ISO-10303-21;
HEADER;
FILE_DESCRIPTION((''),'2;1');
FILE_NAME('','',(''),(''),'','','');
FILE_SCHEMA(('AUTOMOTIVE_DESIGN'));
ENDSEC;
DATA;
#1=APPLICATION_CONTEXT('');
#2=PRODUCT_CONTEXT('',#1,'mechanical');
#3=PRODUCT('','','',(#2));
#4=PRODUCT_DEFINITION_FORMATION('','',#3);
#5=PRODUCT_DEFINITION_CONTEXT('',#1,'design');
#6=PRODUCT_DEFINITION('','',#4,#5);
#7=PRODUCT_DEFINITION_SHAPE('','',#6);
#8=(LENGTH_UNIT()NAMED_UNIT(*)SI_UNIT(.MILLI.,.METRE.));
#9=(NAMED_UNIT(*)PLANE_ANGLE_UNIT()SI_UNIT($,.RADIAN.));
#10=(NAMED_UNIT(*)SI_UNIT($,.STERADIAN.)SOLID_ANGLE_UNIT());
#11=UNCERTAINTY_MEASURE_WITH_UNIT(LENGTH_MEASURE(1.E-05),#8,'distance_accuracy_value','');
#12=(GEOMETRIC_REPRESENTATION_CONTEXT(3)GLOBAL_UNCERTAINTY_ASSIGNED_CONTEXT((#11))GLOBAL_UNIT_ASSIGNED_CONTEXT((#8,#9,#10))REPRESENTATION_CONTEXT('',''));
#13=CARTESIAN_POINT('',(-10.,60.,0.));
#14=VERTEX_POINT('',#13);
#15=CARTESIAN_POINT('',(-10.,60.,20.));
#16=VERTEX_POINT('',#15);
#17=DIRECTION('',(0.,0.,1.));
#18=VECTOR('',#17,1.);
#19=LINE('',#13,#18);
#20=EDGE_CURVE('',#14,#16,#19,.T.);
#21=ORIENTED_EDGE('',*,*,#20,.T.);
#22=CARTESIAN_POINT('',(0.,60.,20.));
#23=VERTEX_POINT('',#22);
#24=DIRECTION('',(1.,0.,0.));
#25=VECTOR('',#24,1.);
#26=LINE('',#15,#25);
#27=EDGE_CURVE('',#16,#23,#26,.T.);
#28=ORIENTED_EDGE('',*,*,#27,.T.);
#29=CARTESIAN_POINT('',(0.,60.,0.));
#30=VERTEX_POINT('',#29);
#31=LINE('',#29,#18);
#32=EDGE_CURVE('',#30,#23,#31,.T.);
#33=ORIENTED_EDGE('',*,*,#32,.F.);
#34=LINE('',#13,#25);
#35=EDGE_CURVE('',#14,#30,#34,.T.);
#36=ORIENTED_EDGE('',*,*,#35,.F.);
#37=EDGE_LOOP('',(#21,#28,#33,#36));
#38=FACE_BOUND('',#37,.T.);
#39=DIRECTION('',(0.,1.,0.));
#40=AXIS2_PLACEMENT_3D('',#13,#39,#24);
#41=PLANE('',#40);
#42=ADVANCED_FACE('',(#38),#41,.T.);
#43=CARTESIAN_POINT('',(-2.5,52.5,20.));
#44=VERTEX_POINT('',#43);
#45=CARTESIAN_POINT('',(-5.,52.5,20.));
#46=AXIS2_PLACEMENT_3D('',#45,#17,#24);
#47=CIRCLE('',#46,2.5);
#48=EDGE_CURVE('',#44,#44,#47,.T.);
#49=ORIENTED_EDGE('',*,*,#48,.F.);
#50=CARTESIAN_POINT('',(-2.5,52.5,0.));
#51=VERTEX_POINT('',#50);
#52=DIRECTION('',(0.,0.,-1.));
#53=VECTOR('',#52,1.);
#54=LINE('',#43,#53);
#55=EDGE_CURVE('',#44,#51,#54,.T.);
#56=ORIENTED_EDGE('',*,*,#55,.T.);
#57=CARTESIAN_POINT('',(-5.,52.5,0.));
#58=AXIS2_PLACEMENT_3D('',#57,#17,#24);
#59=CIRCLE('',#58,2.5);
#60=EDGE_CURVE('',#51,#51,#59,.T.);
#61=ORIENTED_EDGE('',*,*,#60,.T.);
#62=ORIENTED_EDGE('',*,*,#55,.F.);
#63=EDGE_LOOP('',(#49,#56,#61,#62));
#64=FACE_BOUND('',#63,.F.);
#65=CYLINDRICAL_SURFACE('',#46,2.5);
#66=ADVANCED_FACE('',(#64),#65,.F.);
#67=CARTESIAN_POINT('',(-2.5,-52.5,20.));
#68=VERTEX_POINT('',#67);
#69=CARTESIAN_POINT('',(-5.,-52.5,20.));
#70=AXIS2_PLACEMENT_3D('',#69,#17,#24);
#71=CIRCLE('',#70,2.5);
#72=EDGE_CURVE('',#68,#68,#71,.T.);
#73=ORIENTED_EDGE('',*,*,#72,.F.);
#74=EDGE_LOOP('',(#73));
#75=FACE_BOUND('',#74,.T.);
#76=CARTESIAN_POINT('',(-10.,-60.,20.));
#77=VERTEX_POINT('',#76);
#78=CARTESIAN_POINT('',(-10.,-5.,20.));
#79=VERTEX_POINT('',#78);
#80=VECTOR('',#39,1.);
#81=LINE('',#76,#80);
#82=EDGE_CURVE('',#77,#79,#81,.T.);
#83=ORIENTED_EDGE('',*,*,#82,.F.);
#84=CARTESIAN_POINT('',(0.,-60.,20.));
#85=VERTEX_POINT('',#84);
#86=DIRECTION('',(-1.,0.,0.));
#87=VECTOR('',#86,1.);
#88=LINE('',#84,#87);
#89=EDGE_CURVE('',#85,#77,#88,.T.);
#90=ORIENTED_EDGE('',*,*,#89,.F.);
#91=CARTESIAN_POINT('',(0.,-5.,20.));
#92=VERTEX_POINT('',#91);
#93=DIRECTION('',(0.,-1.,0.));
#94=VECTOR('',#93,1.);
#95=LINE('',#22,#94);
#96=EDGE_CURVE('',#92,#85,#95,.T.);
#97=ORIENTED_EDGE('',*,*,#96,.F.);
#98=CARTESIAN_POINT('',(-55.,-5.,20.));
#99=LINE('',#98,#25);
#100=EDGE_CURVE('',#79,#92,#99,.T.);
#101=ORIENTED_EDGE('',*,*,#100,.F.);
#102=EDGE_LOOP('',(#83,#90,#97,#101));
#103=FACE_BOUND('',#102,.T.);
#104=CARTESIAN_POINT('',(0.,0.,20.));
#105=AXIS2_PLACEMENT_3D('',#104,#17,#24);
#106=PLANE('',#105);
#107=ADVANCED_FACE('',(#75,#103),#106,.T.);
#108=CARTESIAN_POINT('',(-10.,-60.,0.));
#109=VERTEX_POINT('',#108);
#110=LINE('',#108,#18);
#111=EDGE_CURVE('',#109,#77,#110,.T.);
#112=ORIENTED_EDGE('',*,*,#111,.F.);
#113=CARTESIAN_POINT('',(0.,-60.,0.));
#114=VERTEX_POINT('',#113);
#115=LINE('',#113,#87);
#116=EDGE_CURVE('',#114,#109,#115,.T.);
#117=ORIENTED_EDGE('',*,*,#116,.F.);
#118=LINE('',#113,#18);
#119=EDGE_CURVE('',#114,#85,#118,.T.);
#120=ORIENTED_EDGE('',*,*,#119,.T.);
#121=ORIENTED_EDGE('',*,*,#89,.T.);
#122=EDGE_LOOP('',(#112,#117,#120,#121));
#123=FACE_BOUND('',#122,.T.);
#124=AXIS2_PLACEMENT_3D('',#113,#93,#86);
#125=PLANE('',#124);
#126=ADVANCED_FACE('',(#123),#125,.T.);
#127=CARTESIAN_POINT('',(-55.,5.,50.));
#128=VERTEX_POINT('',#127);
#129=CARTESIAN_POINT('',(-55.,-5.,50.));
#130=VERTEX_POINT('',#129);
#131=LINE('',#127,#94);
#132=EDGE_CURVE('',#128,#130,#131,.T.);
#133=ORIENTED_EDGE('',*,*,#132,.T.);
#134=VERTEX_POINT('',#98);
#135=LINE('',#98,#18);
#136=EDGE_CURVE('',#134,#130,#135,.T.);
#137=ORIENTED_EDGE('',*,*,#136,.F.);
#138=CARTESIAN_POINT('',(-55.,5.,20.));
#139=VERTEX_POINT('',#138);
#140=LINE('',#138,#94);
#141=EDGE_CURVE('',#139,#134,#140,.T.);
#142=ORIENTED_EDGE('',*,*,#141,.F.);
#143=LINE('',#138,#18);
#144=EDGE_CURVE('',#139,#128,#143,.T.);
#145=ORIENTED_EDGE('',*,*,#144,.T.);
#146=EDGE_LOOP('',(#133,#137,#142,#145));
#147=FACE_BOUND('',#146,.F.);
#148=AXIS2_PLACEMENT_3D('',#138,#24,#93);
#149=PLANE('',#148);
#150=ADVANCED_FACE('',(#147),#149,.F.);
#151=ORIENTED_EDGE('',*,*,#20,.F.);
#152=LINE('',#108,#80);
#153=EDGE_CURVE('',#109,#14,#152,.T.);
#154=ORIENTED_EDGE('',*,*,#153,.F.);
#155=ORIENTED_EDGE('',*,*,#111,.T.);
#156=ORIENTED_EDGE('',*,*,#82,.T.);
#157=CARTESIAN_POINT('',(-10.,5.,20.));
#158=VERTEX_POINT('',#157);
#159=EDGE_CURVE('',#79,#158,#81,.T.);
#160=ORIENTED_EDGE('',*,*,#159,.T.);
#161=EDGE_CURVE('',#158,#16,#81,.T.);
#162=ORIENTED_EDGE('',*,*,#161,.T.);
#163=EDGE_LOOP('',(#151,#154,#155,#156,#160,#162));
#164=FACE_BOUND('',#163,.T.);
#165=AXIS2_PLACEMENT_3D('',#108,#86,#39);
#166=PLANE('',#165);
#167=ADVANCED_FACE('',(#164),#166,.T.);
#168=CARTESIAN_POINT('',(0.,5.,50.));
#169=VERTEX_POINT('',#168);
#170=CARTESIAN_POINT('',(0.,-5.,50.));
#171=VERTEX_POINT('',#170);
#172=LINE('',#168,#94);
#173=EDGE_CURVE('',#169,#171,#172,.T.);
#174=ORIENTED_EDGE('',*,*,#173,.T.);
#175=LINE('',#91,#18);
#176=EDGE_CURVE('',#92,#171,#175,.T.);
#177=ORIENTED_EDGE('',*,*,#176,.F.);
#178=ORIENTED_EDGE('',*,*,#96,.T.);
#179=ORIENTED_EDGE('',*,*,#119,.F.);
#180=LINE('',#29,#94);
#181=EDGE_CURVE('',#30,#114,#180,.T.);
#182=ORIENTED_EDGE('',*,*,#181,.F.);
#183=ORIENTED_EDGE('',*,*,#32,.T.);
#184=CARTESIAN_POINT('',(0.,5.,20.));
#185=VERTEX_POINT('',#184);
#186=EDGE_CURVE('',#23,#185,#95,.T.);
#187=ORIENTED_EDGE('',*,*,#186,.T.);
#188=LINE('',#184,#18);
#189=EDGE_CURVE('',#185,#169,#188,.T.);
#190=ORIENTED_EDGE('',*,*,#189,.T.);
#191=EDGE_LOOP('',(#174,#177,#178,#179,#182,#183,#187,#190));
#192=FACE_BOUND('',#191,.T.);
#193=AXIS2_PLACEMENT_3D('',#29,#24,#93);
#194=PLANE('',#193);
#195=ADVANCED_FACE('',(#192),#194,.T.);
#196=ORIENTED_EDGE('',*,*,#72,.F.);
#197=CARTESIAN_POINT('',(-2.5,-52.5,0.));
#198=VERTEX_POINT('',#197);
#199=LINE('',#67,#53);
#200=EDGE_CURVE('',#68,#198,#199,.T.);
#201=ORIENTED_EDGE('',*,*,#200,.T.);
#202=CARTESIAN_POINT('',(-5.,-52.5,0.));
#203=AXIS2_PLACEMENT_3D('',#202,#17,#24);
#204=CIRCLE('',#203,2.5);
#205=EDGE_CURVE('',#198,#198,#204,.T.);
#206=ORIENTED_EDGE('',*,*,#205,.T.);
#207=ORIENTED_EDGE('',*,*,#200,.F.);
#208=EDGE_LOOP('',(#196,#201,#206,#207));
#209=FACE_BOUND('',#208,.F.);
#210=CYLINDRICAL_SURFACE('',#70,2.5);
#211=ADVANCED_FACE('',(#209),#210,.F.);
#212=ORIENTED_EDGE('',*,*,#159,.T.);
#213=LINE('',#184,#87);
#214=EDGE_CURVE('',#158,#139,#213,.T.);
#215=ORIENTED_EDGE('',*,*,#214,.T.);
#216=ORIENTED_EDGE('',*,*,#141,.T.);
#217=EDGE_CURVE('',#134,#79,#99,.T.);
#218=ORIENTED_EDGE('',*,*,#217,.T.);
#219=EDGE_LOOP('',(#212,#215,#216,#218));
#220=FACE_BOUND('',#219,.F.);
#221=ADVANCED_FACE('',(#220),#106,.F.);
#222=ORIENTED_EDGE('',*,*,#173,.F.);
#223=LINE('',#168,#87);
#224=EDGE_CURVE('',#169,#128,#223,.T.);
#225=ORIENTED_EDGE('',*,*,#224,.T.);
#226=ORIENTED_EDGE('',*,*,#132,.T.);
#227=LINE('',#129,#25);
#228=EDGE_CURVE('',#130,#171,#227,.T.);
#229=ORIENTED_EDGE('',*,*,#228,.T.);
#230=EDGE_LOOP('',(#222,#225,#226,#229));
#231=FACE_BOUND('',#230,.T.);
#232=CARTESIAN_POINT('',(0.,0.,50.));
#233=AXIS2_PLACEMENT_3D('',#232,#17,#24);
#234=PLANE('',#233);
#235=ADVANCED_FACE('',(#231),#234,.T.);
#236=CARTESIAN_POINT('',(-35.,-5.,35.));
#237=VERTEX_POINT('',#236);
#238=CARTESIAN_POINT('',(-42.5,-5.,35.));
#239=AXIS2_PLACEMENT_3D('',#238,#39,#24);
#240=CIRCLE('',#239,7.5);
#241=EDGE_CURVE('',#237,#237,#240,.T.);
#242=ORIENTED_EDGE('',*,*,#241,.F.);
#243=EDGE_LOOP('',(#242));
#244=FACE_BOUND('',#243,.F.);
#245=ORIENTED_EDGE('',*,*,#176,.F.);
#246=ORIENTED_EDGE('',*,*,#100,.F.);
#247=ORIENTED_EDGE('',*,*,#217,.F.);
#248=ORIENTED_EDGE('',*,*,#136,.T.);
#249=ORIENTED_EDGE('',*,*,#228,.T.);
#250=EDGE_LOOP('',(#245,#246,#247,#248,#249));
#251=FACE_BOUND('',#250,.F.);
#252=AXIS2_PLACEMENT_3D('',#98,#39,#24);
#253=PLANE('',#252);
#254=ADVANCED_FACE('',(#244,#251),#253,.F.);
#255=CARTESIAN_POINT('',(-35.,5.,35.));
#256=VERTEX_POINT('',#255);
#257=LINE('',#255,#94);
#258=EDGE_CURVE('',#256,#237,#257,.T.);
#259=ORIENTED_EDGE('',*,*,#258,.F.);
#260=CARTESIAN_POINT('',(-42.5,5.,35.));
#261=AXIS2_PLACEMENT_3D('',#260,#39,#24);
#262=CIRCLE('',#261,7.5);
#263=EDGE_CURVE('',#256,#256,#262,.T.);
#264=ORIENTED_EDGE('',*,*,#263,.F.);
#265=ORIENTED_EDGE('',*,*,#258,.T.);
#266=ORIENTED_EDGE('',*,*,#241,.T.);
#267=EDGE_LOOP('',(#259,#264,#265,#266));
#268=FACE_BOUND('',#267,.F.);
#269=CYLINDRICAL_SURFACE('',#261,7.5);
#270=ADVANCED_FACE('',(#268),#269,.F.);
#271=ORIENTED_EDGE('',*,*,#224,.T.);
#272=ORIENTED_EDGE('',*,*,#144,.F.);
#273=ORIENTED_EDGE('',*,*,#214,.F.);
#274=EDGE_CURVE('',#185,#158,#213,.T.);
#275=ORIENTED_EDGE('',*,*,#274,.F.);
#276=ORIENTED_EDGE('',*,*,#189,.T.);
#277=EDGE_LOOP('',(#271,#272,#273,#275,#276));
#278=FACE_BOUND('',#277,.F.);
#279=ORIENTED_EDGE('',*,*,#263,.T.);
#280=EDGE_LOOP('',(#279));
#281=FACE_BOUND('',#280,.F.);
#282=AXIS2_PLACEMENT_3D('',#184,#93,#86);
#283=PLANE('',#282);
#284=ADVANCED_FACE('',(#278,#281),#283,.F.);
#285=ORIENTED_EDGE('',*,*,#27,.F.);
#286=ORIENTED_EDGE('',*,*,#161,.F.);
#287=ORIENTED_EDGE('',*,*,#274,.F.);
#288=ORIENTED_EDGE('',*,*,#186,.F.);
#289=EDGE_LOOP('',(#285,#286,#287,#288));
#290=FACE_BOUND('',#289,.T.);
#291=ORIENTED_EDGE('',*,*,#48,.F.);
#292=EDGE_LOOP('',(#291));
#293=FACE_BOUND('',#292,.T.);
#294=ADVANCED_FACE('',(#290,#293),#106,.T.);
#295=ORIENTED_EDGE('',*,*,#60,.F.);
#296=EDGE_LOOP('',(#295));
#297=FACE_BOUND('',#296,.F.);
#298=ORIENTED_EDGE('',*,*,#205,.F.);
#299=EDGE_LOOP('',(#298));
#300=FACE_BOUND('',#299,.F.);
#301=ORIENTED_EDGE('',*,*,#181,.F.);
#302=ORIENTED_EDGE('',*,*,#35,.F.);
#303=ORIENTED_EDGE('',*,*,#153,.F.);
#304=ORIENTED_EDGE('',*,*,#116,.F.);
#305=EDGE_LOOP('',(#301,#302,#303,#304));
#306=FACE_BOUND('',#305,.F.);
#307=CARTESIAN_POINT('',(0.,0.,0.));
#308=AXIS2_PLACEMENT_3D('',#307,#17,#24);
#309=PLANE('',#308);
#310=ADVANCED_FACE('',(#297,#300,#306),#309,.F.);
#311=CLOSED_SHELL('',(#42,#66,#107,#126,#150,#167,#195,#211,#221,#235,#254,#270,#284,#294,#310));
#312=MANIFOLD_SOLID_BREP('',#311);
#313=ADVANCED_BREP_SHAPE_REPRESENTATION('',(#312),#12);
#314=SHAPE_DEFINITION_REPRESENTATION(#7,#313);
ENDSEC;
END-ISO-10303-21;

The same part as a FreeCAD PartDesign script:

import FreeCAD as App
import Part
import Sketcher

V = App.Vector
Q = App.Units.Quantity


def add_polygon(sketch, points):
    """Adds a closed chain of lines whose ends are joined by coincident constraints."""
    first, n = sketch.GeometryCount, len(points)
    for a, b in zip(points, points[1:] + points[:1]):
        sketch.addGeometry(Part.LineSegment(App.Vector(*a, 0), App.Vector(*b, 0)), False)
    for i in range(n):
        sketch.addConstraint(Sketcher.Constraint("Coincident", first + i, 2, first + (i + 1) % n, 1))

doc = App.newDocument("Part")
body = doc.addObject("PartDesign::Body", "Body")

# Sketch on XY plane
sketch1 = body.newObject("Sketcher::SketchObject", "Sketch")
sketch1.AttachmentSupport = (doc.getObject("XY_Plane"), [""])
sketch1.MapMode = "FlatFace"
add_polygon(sketch1, [(0, -60), (0, 60), (-10, 60), (-10, -60)])  # lines 0-3
sketch1.addConstraint(Sketcher.Constraint("Vertical", 0))
sketch1.addConstraint(Sketcher.Constraint("Horizontal", 1))
sketch1.addConstraint(Sketcher.Constraint("Vertical", 2))
sketch1.addConstraint(Sketcher.Constraint("Horizontal", 3))
sketch1.addConstraint(Sketcher.Constraint("Symmetric", 0, 2, 3, 2, -1, 1))
sketch1.addConstraint(Sketcher.Constraint("DistanceX", 1, 2, 1, 1, Q("10 mm")))
sketch1.addConstraint(Sketcher.Constraint("DistanceY", 0, 1, 0, 2, Q("120 mm")))
pad1 = body.newObject("PartDesign::Pad", "Pad")
pad1.Profile = sketch1
pad1.Length = 20

# Sketch on XY plane
sketch2 = body.newObject("Sketcher::SketchObject", "Sketch001")
sketch2.AttachmentSupport = (doc.getObject("XY_Plane"), [""])
sketch2.MapMode = "FlatFace"
sketch2.AttachmentOffset = App.Placement(V(0, 0, 20), App.Rotation())
add_polygon(sketch2, [(0, -5), (0, 5), (-55, 5), (-55, -5)])  # lines 0-3
sketch2.addConstraint(Sketcher.Constraint("Vertical", 0))
sketch2.addConstraint(Sketcher.Constraint("Horizontal", 1))
sketch2.addConstraint(Sketcher.Constraint("Vertical", 2))
sketch2.addConstraint(Sketcher.Constraint("Horizontal", 3))
sketch2.addConstraint(Sketcher.Constraint("Symmetric", 0, 2, 3, 2, -1, 1))
sketch2.addConstraint(Sketcher.Constraint("DistanceX", 1, 2, 1, 1, Q("55 mm")))
sketch2.addConstraint(Sketcher.Constraint("DistanceY", 0, 1, 0, 2, Q("10 mm")))
pad2 = body.newObject("PartDesign::Pad", "Pad001")
pad2.Profile = sketch2
pad2.Length = 30

# Sketch on XZ plane
sketch3 = body.newObject("Sketcher::SketchObject", "Sketch002")
sketch3.AttachmentSupport = (doc.getObject("XZ_Plane"), [""])
sketch3.MapMode = "FlatFace"
sketch3.AttachmentOffset = App.Placement(V(0, 0, -5), App.Rotation())
sketch3.addGeometry(Part.Circle(V(-42, 35, 0), V(0, 0, 1), 8), False)
sketch3.addConstraint(Sketcher.Constraint("Diameter", 0, Q("15 mm")))
sketch3.addConstraint(Sketcher.Constraint("DistanceY", -1, 1, 0, 3, Q("35 mm")))
sketch3.addConstraint(Sketcher.Constraint("DistanceX", 0, 3, -1, 1, Q("42.5 mm")))
pocket1 = body.newObject("PartDesign::Pocket", "Pocket")
pocket1.Profile = sketch3
pocket1.Length = 10
pocket1.Reversed = True

# Sketch on XY plane
sketch4 = body.newObject("Sketcher::SketchObject", "Sketch003")
sketch4.AttachmentSupport = (doc.getObject("XY_Plane"), [""])
sketch4.MapMode = "FlatFace"
sketch4.AttachmentOffset = App.Placement(V(0, 0, 20), App.Rotation())
sketch4.addGeometry(Part.Circle(V(-5, -52.5, 0), V(0, 0, 1), 2.5), False)
sketch4.addGeometry(Part.Circle(V(-5, 52.5, 0), V(0, 0, 1), 2.5), False)
sketch4.addConstraint(Sketcher.Constraint("Equal", 0, 1))
sketch4.addConstraint(Sketcher.Constraint("Symmetric", 0, 3, 1, 3, -1))
sketch4.addConstraint(Sketcher.Constraint("Diameter", 0, Q("5 mm")))
sketch4.addConstraint(Sketcher.Constraint("DistanceX", 0, 3, -1, 1, Q("5 mm")))
sketch4.addConstraint(Sketcher.Constraint("DistanceY", 0, 3, 1, 3, Q("105 mm")))
pocket2 = body.newObject("PartDesign::Pocket", "Pocket001")
pocket2.Profile = sketch4
pocket2.Length = 20

doc.recompute()
